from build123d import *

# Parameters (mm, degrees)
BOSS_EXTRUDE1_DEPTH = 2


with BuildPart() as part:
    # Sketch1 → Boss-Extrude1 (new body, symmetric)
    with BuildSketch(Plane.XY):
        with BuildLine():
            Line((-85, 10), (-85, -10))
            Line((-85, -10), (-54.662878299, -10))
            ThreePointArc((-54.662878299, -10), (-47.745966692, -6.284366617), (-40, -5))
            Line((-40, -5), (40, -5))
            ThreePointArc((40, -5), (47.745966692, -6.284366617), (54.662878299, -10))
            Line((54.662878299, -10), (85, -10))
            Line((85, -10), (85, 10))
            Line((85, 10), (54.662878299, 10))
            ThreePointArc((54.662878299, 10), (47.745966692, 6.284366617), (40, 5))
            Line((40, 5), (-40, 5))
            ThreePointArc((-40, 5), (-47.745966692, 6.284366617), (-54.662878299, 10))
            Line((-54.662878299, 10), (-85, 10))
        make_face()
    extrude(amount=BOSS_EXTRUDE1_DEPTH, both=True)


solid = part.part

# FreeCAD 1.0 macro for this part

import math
import FreeCAD as App
import Part
import Sketcher

V = App.Vector
Q = App.Units.Quantity

doc = App.newDocument("Part")
body = doc.addObject("PartDesign::Body", "Body")

# Sketch on XY plane
sketch1 = doc.addObject("Sketcher::SketchObject", "Sketch")
body.addObject(sketch1)
sketch1.AttachmentSupport = (doc.XY_Plane, [""])
sketch1.MapMode = "FlatFace"
sketch1.addGeometry(Part.LineSegment(V(-85, 10, 0), V(-85, -10, 0)), False)
sketch1.addGeometry(Part.LineSegment(V(-85, -10, 0), V(-55, -10, 0)), False)
sketch1.addGeometry(Part.ArcOfCircle(Part.Circle(V(-40, -29, 0), V(0, 0, 1), 24), math.radians(90), math.radians(128)), False)
sketch1.addGeometry(Part.LineSegment(V(-40, -5, 0), V(40, -5, 0)), False)
sketch1.addGeometry(Part.ArcOfCircle(Part.Circle(V(40, -29, 0), V(0, 0, 1), 24), math.radians(52), math.radians(90)), False)
sketch1.addGeometry(Part.LineSegment(V(55, -10, 0), V(85, -10, 0)), False)
sketch1.addGeometry(Part.LineSegment(V(85, -10, 0), V(85, 10, 0)), False)
sketch1.addGeometry(Part.LineSegment(V(85, 10, 0), V(55, 10, 0)), False)
sketch1.addGeometry(Part.ArcOfCircle(Part.Circle(V(40, 29, 0), V(0, 0, 1), 24), math.radians(-90), math.radians(-52)), False)
sketch1.addGeometry(Part.LineSegment(V(40, 5, 0), V(-40, 5, 0)), False)
sketch1.addGeometry(Part.ArcOfCircle(Part.Circle(V(-40, 29, 0), V(0, 0, 1), 24), math.radians(-128), math.radians(-90)), False)
sketch1.addGeometry(Part.LineSegment(V(-55, 10, 0), V(-85, 10, 0)), False)
sketch1.addConstraint(Sketcher.Constraint("Coincident", 0, 2, 1, 1))
sketch1.addConstraint(Sketcher.Constraint("Coincident", 1, 2, 2, 2))
sketch1.addConstraint(Sketcher.Constraint("Tangent", 2, 1, 3, 1))
sketch1.addConstraint(Sketcher.Constraint("Tangent", 3, 2, 4, 2))
sketch1.addConstraint(Sketcher.Constraint("Coincident", 4, 1, 5, 1))
sketch1.addConstraint(Sketcher.Constraint("Coincident", 5, 2, 6, 1))
sketch1.addConstraint(Sketcher.Constraint("Coincident", 6, 2, 7, 1))
sketch1.addConstraint(Sketcher.Constraint("Coincident", 7, 2, 8, 2))
sketch1.addConstraint(Sketcher.Constraint("Tangent", 8, 1, 9, 1))
sketch1.addConstraint(Sketcher.Constraint("Tangent", 9, 2, 10, 2))
sketch1.addConstraint(Sketcher.Constraint("Coincident", 10, 1, 11, 1))
sketch1.addConstraint(Sketcher.Constraint("Coincident", 11, 2, 0, 1))
sketch1.addConstraint(Sketcher.Constraint("Vertical", 0))
sketch1.addConstraint(Sketcher.Constraint("Horizontal", 1))
sketch1.addConstraint(Sketcher.Constraint("Horizontal", 3))
sketch1.addConstraint(Sketcher.Constraint("Horizontal", 5))
sketch1.addConstraint(Sketcher.Constraint("Vertical", 6))
sketch1.addConstraint(Sketcher.Constraint("Horizontal", 7))
sketch1.addConstraint(Sketcher.Constraint("Horizontal", 9))
sketch1.addConstraint(Sketcher.Constraint("Horizontal", 11))
sketch1.addConstraint(Sketcher.Constraint("Equal", 2, 4))
sketch1.addConstraint(Sketcher.Constraint("Equal", 4, 8))
sketch1.addConstraint(Sketcher.Constraint("Equal", 8, 10))
sketch1.addConstraint(Sketcher.Constraint("Symmetric", 2, 3, 8, 3, -1, 1))
sketch1.addConstraint(Sketcher.Constraint("Symmetric", 0, 2, 6, 2, -1, 1))
sketch1.addConstraint(Sketcher.Constraint("Symmetric", 4, 1, 10, 1, -1, 1))
sketch1.addConstraint(Sketcher.Constraint("Symmetric", 1, 2, 4, 1, -2))
sketch1.addConstraint(Sketcher.Constraint("Radius", 2, Q("24 mm")))
sketch1.addConstraint(Sketcher.Constraint("DistanceX", 3, 1, 3, 2, Q("80 mm")))
sketch1.addConstraint(Sketcher.Constraint("DistanceY", 0, 2, 0, 1, Q("20 mm")))
sketch1.addConstraint(Sketcher.Constraint("DistanceY", 2, 3, -1, 1, Q("29 mm")))
sketch1.addConstraint(Sketcher.Constraint("DistanceX", 0, 2, -1, 1, Q("85 mm")))
pad1 = doc.addObject("PartDesign::Pad", "Pad")
body.addObject(pad1)
pad1.Profile = sketch1
pad1.Length = 4
pad1.Midplane = True

doc.recompute()
